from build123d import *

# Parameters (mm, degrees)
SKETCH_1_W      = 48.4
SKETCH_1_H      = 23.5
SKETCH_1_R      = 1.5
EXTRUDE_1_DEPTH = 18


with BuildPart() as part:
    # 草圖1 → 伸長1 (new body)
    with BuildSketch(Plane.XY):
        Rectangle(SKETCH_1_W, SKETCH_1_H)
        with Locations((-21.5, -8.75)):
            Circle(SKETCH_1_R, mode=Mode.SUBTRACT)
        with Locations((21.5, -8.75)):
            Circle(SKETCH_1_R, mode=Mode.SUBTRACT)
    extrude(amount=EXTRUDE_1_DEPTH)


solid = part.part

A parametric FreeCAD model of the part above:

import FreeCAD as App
import Part
import Sketcher
from FreeCAD import Vector

doc = App.newDocument("Part")
body = doc.addObject("PartDesign::Body", "Body")

# Sketch on XY plane
sketch1 = body.newObject("Sketcher::SketchObject", "Sketch")
sketch1.AttachmentSupport = (doc.getObject("XY_Plane"), [""])
sketch1.MapMode = "FlatFace"
sketch1.addGeometry([
    Part.LineSegment(Vector(-24.2, 11.8, 0), Vector(-24.2, -11.8, 0)),  # 0
    Part.LineSegment(Vector(-24.2, -11.8, 0), Vector(24.2, -11.8, 0)),  # 1
    Part.LineSegment(Vector(24.2, -11.8, 0), Vector(24.2, 11.8, 0)),  # 2
    Part.LineSegment(Vector(24.2, 11.8, 0), Vector(-24.2, 11.8, 0)),  # 3
    Part.Circle(Vector(-21.5, -8.8, 0), Vector(0, 0, 1), 1.5),  # 4
    Part.Circle(Vector(21.5, -8.8, 0), Vector(0, 0, 1), 1.5),  # 5
], False)
sketch1.addConstraint([
    Sketcher.Constraint("Coincident", 0, 2, 1, 1),
    Sketcher.Constraint("Coincident", 1, 2, 2, 1),
    Sketcher.Constraint("Coincident", 2, 2, 3, 1),
    Sketcher.Constraint("Coincident", 3, 2, 0, 1),
    Sketcher.Constraint("Vertical", 0),
    Sketcher.Constraint("Horizontal", 1),
    Sketcher.Constraint("Vertical", 2),
    Sketcher.Constraint("Horizontal", 3),
    Sketcher.Constraint("Equal", 4, 5),
    Sketcher.Constraint("Symmetric", 0, 2, 2, 2, -1, 1),
    Sketcher.Constraint("Symmetric", 4, 3, 5, 3, -2),
    Sketcher.Constraint("Diameter", 4, 3.0),
    Sketcher.Constraint("DistanceX", 1, 1, 1, 2, 48.4),
    Sketcher.Constraint("DistanceY", 0, 2, 0, 1, 23.5),
    Sketcher.Constraint("DistanceX", 4, 3, 5, 3, 43.0),
    Sketcher.Constraint("DistanceY", 0, 2, 4, 3, 3.0),
])
pad1 = body.newObject("PartDesign::Pad", "Pad")
pad1.Profile = sketch1
pad1.Length = 18

doc.recompute()
